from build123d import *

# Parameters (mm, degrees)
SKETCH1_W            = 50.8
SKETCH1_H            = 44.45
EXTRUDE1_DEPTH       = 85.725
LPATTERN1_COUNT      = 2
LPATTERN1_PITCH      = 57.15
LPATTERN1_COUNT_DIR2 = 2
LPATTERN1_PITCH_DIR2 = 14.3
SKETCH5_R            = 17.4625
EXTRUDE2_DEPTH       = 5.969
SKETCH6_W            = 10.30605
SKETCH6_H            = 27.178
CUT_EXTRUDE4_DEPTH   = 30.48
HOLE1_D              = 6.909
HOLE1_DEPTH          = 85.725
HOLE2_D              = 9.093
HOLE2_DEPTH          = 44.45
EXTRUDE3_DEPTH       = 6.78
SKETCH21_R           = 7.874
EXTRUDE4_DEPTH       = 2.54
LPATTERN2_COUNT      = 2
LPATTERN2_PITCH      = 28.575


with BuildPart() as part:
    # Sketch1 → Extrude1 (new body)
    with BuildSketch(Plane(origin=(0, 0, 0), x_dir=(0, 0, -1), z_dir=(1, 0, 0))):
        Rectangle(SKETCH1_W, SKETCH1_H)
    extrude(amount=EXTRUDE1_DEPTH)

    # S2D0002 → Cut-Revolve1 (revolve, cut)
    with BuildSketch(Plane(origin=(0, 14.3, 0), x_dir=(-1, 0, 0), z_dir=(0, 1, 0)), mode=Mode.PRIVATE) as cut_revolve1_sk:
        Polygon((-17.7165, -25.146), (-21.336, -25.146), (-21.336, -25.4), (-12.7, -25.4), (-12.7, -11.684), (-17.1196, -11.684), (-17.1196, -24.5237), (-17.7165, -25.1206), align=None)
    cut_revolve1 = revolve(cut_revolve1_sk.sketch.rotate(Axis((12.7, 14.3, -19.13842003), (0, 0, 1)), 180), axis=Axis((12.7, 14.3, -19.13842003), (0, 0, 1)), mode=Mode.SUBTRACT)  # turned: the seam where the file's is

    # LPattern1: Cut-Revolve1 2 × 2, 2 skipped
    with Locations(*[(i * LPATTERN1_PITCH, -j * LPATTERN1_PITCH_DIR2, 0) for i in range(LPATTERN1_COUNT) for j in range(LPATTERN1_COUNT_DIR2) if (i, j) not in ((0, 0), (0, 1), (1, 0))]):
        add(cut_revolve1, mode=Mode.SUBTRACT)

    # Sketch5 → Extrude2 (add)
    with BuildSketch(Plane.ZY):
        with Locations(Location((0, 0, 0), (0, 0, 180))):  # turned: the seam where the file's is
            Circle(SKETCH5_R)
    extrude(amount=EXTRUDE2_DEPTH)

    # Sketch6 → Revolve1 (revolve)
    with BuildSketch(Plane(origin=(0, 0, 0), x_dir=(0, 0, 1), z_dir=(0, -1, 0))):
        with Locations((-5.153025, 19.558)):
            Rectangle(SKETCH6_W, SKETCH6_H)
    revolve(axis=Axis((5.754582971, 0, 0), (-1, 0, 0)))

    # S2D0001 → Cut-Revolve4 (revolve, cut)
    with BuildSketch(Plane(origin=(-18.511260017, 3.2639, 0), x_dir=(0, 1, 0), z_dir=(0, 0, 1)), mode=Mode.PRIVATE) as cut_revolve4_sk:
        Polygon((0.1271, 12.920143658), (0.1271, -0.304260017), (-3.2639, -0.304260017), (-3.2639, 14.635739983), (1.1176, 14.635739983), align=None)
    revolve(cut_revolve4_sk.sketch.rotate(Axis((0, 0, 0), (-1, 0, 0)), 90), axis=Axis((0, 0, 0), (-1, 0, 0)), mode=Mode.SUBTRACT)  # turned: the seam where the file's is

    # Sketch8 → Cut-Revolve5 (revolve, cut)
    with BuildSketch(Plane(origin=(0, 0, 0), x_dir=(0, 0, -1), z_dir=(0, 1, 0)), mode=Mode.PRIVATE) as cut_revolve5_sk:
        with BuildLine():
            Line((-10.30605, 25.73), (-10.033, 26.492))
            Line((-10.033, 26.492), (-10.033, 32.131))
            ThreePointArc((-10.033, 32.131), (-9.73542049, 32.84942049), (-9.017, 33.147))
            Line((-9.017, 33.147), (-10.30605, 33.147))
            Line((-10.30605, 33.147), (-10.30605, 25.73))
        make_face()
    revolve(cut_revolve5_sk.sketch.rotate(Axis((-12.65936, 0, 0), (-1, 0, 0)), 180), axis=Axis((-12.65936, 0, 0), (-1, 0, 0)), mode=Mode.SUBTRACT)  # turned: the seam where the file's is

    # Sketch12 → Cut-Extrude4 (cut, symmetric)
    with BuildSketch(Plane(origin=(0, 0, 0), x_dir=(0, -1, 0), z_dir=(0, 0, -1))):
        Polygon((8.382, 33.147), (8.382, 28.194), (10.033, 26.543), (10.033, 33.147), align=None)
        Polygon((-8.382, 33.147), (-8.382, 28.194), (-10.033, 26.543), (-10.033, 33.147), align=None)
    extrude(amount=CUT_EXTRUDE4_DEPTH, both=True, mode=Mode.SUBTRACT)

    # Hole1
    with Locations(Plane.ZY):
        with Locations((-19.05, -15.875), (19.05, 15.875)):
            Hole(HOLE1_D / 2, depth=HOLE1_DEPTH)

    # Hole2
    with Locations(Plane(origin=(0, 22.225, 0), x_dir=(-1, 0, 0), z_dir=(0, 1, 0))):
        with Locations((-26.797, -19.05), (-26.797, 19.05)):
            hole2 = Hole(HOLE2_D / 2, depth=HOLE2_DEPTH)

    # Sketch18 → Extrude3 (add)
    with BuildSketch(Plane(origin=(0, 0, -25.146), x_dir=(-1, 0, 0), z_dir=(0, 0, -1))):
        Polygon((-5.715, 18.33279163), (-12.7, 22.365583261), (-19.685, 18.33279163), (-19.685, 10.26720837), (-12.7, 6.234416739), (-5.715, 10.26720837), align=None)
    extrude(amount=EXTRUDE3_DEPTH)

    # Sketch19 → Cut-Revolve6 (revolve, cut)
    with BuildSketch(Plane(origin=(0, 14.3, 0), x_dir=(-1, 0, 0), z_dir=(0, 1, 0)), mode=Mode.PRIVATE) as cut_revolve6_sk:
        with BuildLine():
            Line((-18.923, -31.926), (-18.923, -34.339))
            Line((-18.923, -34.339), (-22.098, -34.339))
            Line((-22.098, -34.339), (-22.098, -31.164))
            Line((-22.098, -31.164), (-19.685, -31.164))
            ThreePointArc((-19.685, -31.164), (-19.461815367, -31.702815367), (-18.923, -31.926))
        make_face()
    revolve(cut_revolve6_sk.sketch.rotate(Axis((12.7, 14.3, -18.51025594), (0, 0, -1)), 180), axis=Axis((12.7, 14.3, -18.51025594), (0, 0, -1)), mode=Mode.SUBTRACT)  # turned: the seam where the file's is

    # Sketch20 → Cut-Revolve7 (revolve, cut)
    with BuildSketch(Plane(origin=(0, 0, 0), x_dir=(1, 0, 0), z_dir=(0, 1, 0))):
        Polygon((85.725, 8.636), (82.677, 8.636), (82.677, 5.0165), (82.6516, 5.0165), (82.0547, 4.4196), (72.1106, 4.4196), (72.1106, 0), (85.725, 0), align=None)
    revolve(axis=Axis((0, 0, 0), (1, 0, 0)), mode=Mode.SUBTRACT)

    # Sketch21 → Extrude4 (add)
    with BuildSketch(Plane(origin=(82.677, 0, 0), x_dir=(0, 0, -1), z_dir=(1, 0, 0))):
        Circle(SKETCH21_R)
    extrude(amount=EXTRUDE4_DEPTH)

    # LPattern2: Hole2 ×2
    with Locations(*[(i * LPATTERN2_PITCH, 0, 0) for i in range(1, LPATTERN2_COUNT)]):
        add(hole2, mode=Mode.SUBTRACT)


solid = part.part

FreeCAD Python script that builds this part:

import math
import FreeCAD as App
import Part
import Sketcher
Q = App.Units.Quantity


def add_polygon(sketch, points):
    """Adds a closed chain of lines whose ends are joined by coincident constraints."""
    first, n = sketch.GeometryCount, len(points)
    for a, b in zip(points, points[1:] + points[:1]):
        sketch.addGeometry(Part.LineSegment(App.Vector(*a, 0), App.Vector(*b, 0)), False)
    for i in range(n):
        sketch.addConstraint(Sketcher.Constraint("Coincident", first + i, 2, first + (i + 1) % n, 1))

doc = App.newDocument("Part")
params = doc.addObject("Spreadsheet::Sheet", "Params")
for row, (alias, value) in enumerate([
    ("sketch1_height", "2 in"),
    ("sketch1_width", "1.75 in"),
    ("pad1_length", "3.375 in"),
    ("sketch2_width", "0.34 in"),
    ("sketch2_height", "0.01 in"),
    ("sketch2_height2", "0.54 in"),
    ("sketch2_width2", "0.174 in"),
    ("sketch2_height3", "0.001 in"),
    ("groove_angle", "360 deg"),
    ("linearpattern_pitch", "58.911905 mm"),
    ("sketch3_diameter", "1.375 in"),
    ("pad2_length", "0.235 in"),
    ("sketch4_width", "1.07 in"),
    ("revolution_angle", "360 deg"),
    ("groove2_angle", "360 deg"),
    ("sketch6_radius", "0.04 in"),
    ("groove3_angle", "360 deg"),
    ("sketch7_width", "0.26 in"),
    ("sketch7_width2", "0.195 in"),
    ("pocket1_length", "2.4 in"),
    ("hole_diameter", "6.909 mm"),
    ("hole_depth", "3.375 in"),
    ("hole2_diameter", "9.093 mm"),
    ("hole2_depth", "1.75 in"),
    ("pad3_length", "6.78 mm"),
    ("sketch11_radius", "0.03 in"),
    ("sketch11_width", "0.095 in"),
    ("groove4_angle", "360 deg"),
    ("sketch12_width", "0.12 in"),
    ("sketch12_height", "0.34 in"),
    ("sketch12_width2", "0.001 in"),
    ("sketch12_width3", "0.536 in"),
    ("sketch12_height2", "0.174 in"),
    ("groove5_angle", "360 deg"),
    ("sketch13_diameter", "0.62 in"),
    ("pad4_length", "0.1 in"),
    ("linearpattern2_pitch", "1.125 in"),
], start=1):
    params.set(f"A{row}", alias)
    params.set(f"B{row}", "=" + value)
    params.setAlias(f"B{row}", alias)

body = doc.addObject("PartDesign::Body", "Body")

# Sketch on YZ plane
sketch1 = body.newObject("Sketcher::SketchObject", "Sketch")
sketch1.AttachmentSupport = (doc.getObject("YZ_Plane"), [""])
sketch1.MapMode = "FlatFace"
add_polygon(sketch1, [(22.225, 25.4), (-22.225, 25.4), (-22.225, -25.4), (22.225, -25.4)])  # lines 0-3
sketch1.addConstraint([
    Sketcher.Constraint("Horizontal", 0),
    Sketcher.Constraint("Vertical", 1),
    Sketcher.Constraint("Horizontal", 2),
    Sketcher.Constraint("Vertical", 3),
    Sketcher.Constraint("Symmetric", 0, 2, 2, 2, -1, 1),
    Sketcher.Constraint("DistanceY", 1, 2, 1, 1, Q("2 in")),
    Sketcher.Constraint("DistanceX", 0, 2, 0, 1, Q("1.75 in")),
])
sketch1.setExpression("Constraints[9]", "Params.sketch1_height")
sketch1.setExpression("Constraints[10]", "Params.sketch1_width")
pad1 = body.newObject("PartDesign::Pad", "Pad")
pad1.Profile = sketch1
pad1.setExpression("Length", "Params.pad1_length")

# Sketch on XZ plane
sketch2 = body.newObject("Sketcher::SketchObject", "Sketch001")
sketch2.AttachmentSupport = (doc.getObject("XZ_Plane"), [""])
sketch2.MapMode = "FlatFace"
sketch2.AttachmentOffset = App.Placement(App.Vector(0, 0, -14.3), App.Rotation())
add_polygon(sketch2, [(17.7165, -25.146), (21.336, -25.146), (21.336, -25.4), (12.7, -25.4), (12.7, -11.684), (17.1196, -11.684), (17.1196, -24.5237), (17.7165, -25.1206)])  # lines 0-7
sketch2.addGeometry(Part.LineSegment(App.Vector(12.7, -25.4, 0), App.Vector(12.7, -11.684, 0)), True)  # axis
sketch2.addConstraint([
    Sketcher.Constraint("Horizontal", 0),
    Sketcher.Constraint("Vertical", 1),
    Sketcher.Constraint("Horizontal", 2),
    Sketcher.Constraint("Vertical", 3),
    Sketcher.Constraint("Horizontal", 4),
    Sketcher.Constraint("Vertical", 5),
    Sketcher.Constraint("Vertical", 7),
    Sketcher.Constraint("Vertical", 8),
    Sketcher.Constraint("Coincident", 8, 1, 2, 2),
    Sketcher.Constraint("Horizontal", 4, 2, 8, 2),
    Sketcher.Constraint("DistanceY", 1, 2, -1, 1, Q("1 in")),
    Sketcher.Constraint("Angle", 6, Q("-45 deg")),
    Sketcher.Constraint("DistanceX", 2, 2, 2, 1, Q("0.34 in")),
    Sketcher.Constraint("DistanceY", 1, 2, 1, 1, Q("0.01 in")),
    Sketcher.Constraint("DistanceY", 3, 1, 3, 2, Q("0.54 in")),
    Sketcher.Constraint("DistanceX", -1, 1, 2, 2, Q("0.5 in")),
    Sketcher.Constraint("DistanceX", 4, 1, 4, 2, Q("0.174 in")),
    Sketcher.Constraint("DistanceY", 7, 2, 7, 1, Q("0.001 in")),
    Sketcher.Constraint("DistanceX", 0, 1, 0, 2, Q("0.1425 in")),
])
sketch2.setExpression("Constraints[20]", "Params.sketch2_width")
sketch2.setExpression("Constraints[21]", "Params.sketch2_height")
sketch2.setExpression("Constraints[22]", "Params.sketch2_height2")
sketch2.setExpression("Constraints[24]", "Params.sketch2_width2")
sketch2.setExpression("Constraints[25]", "Params.sketch2_height3")
groove = body.newObject("PartDesign::Groove", "Groove")
groove.Profile = sketch2
groove.ReferenceAxis = (sketch2, ["Axis0"])
groove.setExpression("Angle", "Params.groove_angle")
doc.recompute()

datumline = body.newObject("PartDesign::Line", "DatumLine")
datumline.Placement = App.Placement(App.Vector(0, 0, 0), App.Rotation(App.Vector(0, 0, 1), App.Vector(0.970092555, -0.24273532, 0)))
linearpattern = body.newObject("PartDesign::LinearPattern", "LinearPattern")
linearpattern.Originals = [groove]
linearpattern.Direction = (datumline, [""])
linearpattern.Mode = "offset"
linearpattern.setExpression("Offset", "Params.linearpattern_pitch")
linearpattern.Occurrences = 2
body.Tip = linearpattern

# Sketch on YZ plane
sketch3 = body.newObject("Sketcher::SketchObject", "Sketch002")
sketch3.AttachmentSupport = (doc.getObject("YZ_Plane"), [""])
sketch3.MapMode = "FlatFace"
sketch3.addGeometry(Part.Circle(App.Vector(0, 0, 0), App.Vector(0, 0, 1), 17.4625), False)
sketch3.addConstraint([
    Sketcher.Constraint("Coincident", 0, 3, -1, 1),
    Sketcher.Constraint("Diameter", 0, Q("1.375 in")),
])
sketch3.setExpression("Constraints[1]", "Params.sketch3_diameter")
pad2 = body.newObject("PartDesign::Pad", "Pad001")
pad2.Profile = sketch3
pad2.setExpression("Length", "Params.pad2_length")
pad2.Reversed = True

# Sketch on XZ plane
sketch4 = body.newObject("Sketcher::SketchObject", "Sketch003")
sketch4.AttachmentSupport = (doc.getObject("XZ_Plane"), [""])
sketch4.MapMode = "FlatFace"
add_polygon(sketch4, [(-33.147, -10.30605), (-5.969, -10.30605), (-5.969, 0), (-33.147, 0)])  # lines 0-3
sketch4.addConstraint([
    Sketcher.Constraint("Horizontal", 0),
    Sketcher.Constraint("Vertical", 1),
    Sketcher.Constraint("Horizontal", 2),
    Sketcher.Constraint("Vertical", 3),
    Sketcher.Constraint("PointOnObject", 1, 2, -1),
    Sketcher.Constraint("DistanceX", 0, 1, 0, 2, Q("1.07 in")),
    Sketcher.Constraint("DistanceX", 0, 2, -1, 1, Q("0.235 in")),
    Sketcher.Constraint("DistanceY", 1, 1, 1, 2, Q("10.30605 mm")),
])
sketch4.setExpression("Constraints[9]", "Params.sketch4_width")
revolution = body.newObject("PartDesign::Revolution", "Revolution")
revolution.Profile = sketch4
revolution.ReferenceAxis = (sketch4, ["H_Axis"])
revolution.setExpression("Angle", "Params.revolution_angle")

# Sketch on XY plane
sketch5 = body.newObject("Sketcher::SketchObject", "Sketch004")
sketch5.AttachmentSupport = (doc.getObject("XY_Plane"), [""])
sketch5.MapMode = "FlatFace"
add_polygon(sketch5, [(-18.207, 3.391), (-31.431404, 3.391), (-33.147, 4.3815), (-33.147, 0), (-18.207, 0)])  # lines 0-4
sketch5.addConstraint([
    Sketcher.Constraint("Horizontal", 0),
    Sketcher.Constraint("Vertical", 2),
    Sketcher.Constraint("Horizontal", 3),
    Sketcher.Constraint("Vertical", 4),
    Sketcher.Constraint("PointOnObject", 2, 2, -1),
    Sketcher.Constraint("Angle", 1, Q("150 deg")),
    Sketcher.Constraint("DistanceY", 2, 2, 2, 1, Q("0.1725 in")),
    Sketcher.Constraint("DistanceX", 1, 2, -1, 1, Q("1.305 in")),
    Sketcher.Constraint("DistanceX", 3, 1, 3, 2, Q("14.94 mm")),
    Sketcher.Constraint("DistanceY", 4, 1, 4, 2, Q("3.391 mm")),
])
groove2 = body.newObject("PartDesign::Groove", "Groove001")
groove2.Profile = sketch5
groove2.ReferenceAxis = (sketch5, ["H_Axis"])
groove2.setExpression("Angle", "Params.groove2_angle")

# Sketch on XZ plane
sketch6 = body.newObject("Sketcher::SketchObject", "Sketch005")
sketch6.AttachmentSupport = (doc.getObject("XZ_Plane"), [""])
sketch6.MapMode = "FlatFace"
sketch6.addGeometry([
    Part.LineSegment(App.Vector(-25.73, 10.30605, 0), App.Vector(-26.492, 10.033, 0)),  # 0
    Part.LineSegment(App.Vector(-26.492, 10.033, 0), App.Vector(-32.131, 10.033, 0)),  # 1
    Part.ArcOfCircle(Part.Circle(App.Vector(-32.131, 9.017, 0), App.Vector(0, 0, 1), 1.016), math.radians(90), math.radians(180)),  # 2
    Part.LineSegment(App.Vector(-33.147, 9.017, 0), App.Vector(-33.147, 10.30605, 0)),  # 3
    Part.LineSegment(App.Vector(-33.147, 10.30605, 0), App.Vector(-25.73, 10.30605, 0)),  # 4
], False)
sketch6.addConstraint([
    Sketcher.Constraint("Coincident", 0, 2, 1, 1),
    Sketcher.Constraint("Tangent", 1, 2, 2, 1),
    Sketcher.Constraint("Tangent", 2, 2, 3, 1),
    Sketcher.Constraint("Coincident", 3, 2, 4, 1),
    Sketcher.Constraint("Coincident", 4, 2, 0, 1),
    Sketcher.Constraint("Horizontal", 1),
    Sketcher.Constraint("Vertical", 3),
    Sketcher.Constraint("Horizontal", 4),
    Sketcher.Constraint("Radius", 2, Q("0.04 in")),
    Sketcher.Constraint("DistanceX", 0, 2, 4, 2, Q("0.03 in")),
    Sketcher.Constraint("DistanceX", 2, 3, -1, 1, Q("1.265 in")),
    Sketcher.Constraint("DistanceY", -1, 1, 2, 3, Q("0.355 in")),
    Sketcher.Constraint("DistanceX", 1, 2, 1, 1, Q("5.639 mm")),
    Sketcher.Constraint("DistanceY", 3, 1, 3, 2, Q("1.28905 mm")),
])
sketch6.setExpression("Constraints[8]", "Params.sketch6_radius")
groove3 = body.newObject("PartDesign::Groove", "Groove002")
groove3.Profile = sketch6
groove3.ReferenceAxis = (sketch6, ["H_Axis"])
groove3.setExpression("Angle", "Params.groove3_angle")

# Sketch on XY plane
sketch7 = body.newObject("Sketcher::SketchObject", "Sketch006")
sketch7.AttachmentSupport = (doc.getObject("XY_Plane"), [""])
sketch7.MapMode = "FlatFace"
add_polygon(sketch7, [(-33.147, -8.382), (-28.194, -8.382), (-26.543, -10.033), (-33.147, -10.033)])  # lines 0-3
add_polygon(sketch7, [(-28.194, 8.382), (-33.147, 8.382), (-33.147, 10.033), (-26.543, 10.033)])  # lines 4-7
sketch7.addConstraint([
    Sketcher.Constraint("Horizontal", 0),
    Sketcher.Constraint("Horizontal", 2),
    Sketcher.Constraint("Vertical", 3),
    Sketcher.Constraint("Horizontal", 4),
    Sketcher.Constraint("Vertical", 5),
    Sketcher.Constraint("Horizontal", 6),
    Sketcher.Constraint("Symmetric", 3, 2, 4, 2, -1),
    Sketcher.Constraint("Symmetric", 1, 2, 6, 2, -1),
    Sketcher.Constraint("Perpendicular", 1, 7),
    Sketcher.Constraint("Vertical", 0, 2, 7, 2),
    Sketcher.Constraint("DistanceX", 2, 2, 2, 1, Q("0.26 in")),
    Sketcher.Constraint("DistanceX", 0, 1, 0, 2, Q("0.195 in")),
    Sketcher.Constraint("DistanceX", 0, 2, -1, 1, Q("1.11 in")),
    Sketcher.Constraint("DistanceY", 0, 2, -1, 1, Q("0.33 in")),
])
sketch7.setExpression("Constraints[18]", "Params.sketch7_width")
sketch7.setExpression("Constraints[19]", "Params.sketch7_width2")
pocket1 = body.newObject("PartDesign::Pocket", "Pocket")
pocket1.Profile = sketch7
pocket1.setExpression("Length", "Params.pocket1_length")
pocket1.Midplane = True

# Sketch on YZ plane
sketch8 = body.newObject("Sketcher::SketchObject", "Sketch007")
sketch8.AttachmentSupport = (doc.getObject("YZ_Plane"), [""])
sketch8.MapMode = "FlatFace"
sketch8.addGeometry([
    Part.Circle(App.Vector(-15.875, -19.05, 0), App.Vector(0, 0, 1), 3.4545),
    Part.Circle(App.Vector(15.875, 19.05, 0), App.Vector(0, 0, 1), 3.4545),
], False)
sketch8.addConstraint([
    Sketcher.Constraint("Equal", 0, 1),
    Sketcher.Constraint("Symmetric", 0, 3, 1, 3, -1, 1),
    Sketcher.Constraint("DistanceY", 0, 3, 1, 3, Q("1.5 in")),
    Sketcher.Constraint("Diameter", 0, Q("6.909 mm")),
    Sketcher.Constraint("DistanceX", 0, 3, 1, 3, Q("1.25 in")),
])
doc.recompute()
hole = body.newObject("PartDesign::Hole", "Hole")
hole.Profile = sketch8
hole.ThreadType = "None"
hole.setExpression("Diameter", "Params.hole_diameter")
hole.DepthType = "Dimension"
hole.setExpression("Depth", "Params.hole_depth")
hole.DrillPoint = "Flat"
hole.Reversed = True

# Sketch on XZ plane
sketch9 = body.newObject("Sketcher::SketchObject", "Sketch008")
sketch9.AttachmentSupport = (doc.getObject("XZ_Plane"), [""])
sketch9.MapMode = "FlatFace"
sketch9.AttachmentOffset = App.Placement(App.Vector(0, 0, -0.875 * 25.4), App.Rotation())
sketch9.addGeometry([
    Part.Circle(App.Vector(26.797, -19.05, 0), App.Vector(0, 0, 1), 4.5465),
    Part.Circle(App.Vector(26.797, 19.05, 0), App.Vector(0, 0, 1), 4.5465),
], False)
sketch9.addConstraint([
    Sketcher.Constraint("Equal", 0, 1),
    Sketcher.Constraint("Symmetric", 0, 3, 1, 3, -1),
    Sketcher.Constraint("DistanceY", 0, 3, 1, 3, Q("1.5 in")),
    Sketcher.Constraint("Diameter", 0, Q("9.093 mm")),
    Sketcher.Constraint("DistanceX", -1, 1, 0, 3, Q("1.055 in")),
])
doc.recompute()
hole2 = body.newObject("PartDesign::Hole", "Hole001")
hole2.Profile = sketch9
hole2.ThreadType = "None"
hole2.setExpression("Diameter", "Params.hole2_diameter")
hole2.DepthType = "Dimension"
hole2.setExpression("Depth", "Params.hole2_depth")
hole2.DrillPoint = "Flat"
hole2.Reversed = True

# Sketch on XY plane
sketch10 = body.newObject("Sketcher::SketchObject", "Sketch009")
sketch10.AttachmentSupport = (doc.getObject("XY_Plane"), [""])
sketch10.MapMode = "FlatFace"
sketch10.AttachmentOffset = App.Placement(App.Vector(0, 0, -0.99 * 25.4), App.Rotation())
add_polygon(sketch10, [(5.715, 18.332792), (12.7, 22.365583), (19.685, 18.332792), (19.685, 10.267208), (12.7, 6.234417), (5.715, 10.267208)])  # lines 0-5
sketch10.addConstraint([
    Sketcher.Constraint("Vertical", 2),
    Sketcher.Constraint("Vertical", 5),
    Sketcher.Constraint("Parallel", 0, 3),
    Sketcher.Constraint("Parallel", 1, 4),
    Sketcher.Constraint("Horizontal", 2, 2, 4, 2),
    Sketcher.Constraint("Horizontal", 1, 2, 5, 2),
    Sketcher.Constraint("Vertical", 0, 2, 3, 2),
    Sketcher.Constraint("Angle", 0, Q("30 deg")),
    Sketcher.Constraint("DistanceX", -1, 1, 0, 2, Q("0.5 in")),
    Sketcher.Constraint("DistanceX", 4, 2, 2, 2, Q("0.55 in")),
    Sketcher.Constraint("DistanceY", 2, 2, 2, 1, Q("8.065583 mm")),
    Sketcher.Constraint("DistanceY", -1, 1, 1, 2, Q("18.332792 mm")),
])
pad3 = body.newObject("PartDesign::Pad", "Pad002")
pad3.Profile = sketch10
pad3.setExpression("Length", "Params.pad3_length")
pad3.Reversed = True

# Sketch on XZ plane
sketch11 = body.newObject("Sketcher::SketchObject", "Sketch010")
sketch11.AttachmentSupport = (doc.getObject("XZ_Plane"), [""])
sketch11.MapMode = "FlatFace"
sketch11.AttachmentOffset = App.Placement(App.Vector(0, 0, -14.3), App.Rotation())
sketch11.addGeometry([
    Part.LineSegment(App.Vector(18.923, -34.339, 0), App.Vector(18.923, -31.926, 0)),  # 0
    Part.ArcOfCircle(Part.Circle(App.Vector(18.923, -31.164, 0), App.Vector(0, 0, 1), 0.762), math.radians(-90), math.radians(0)),  # 1
    Part.LineSegment(App.Vector(19.685, -31.164, 0), App.Vector(22.098, -31.164, 0)),  # 2
    Part.LineSegment(App.Vector(22.098, -31.164, 0), App.Vector(22.098, -34.339, 0)),  # 3
    Part.LineSegment(App.Vector(22.098, -34.339, 0), App.Vector(18.923, -34.339, 0)),  # 4
], False)
sketch11.addGeometry(Part.LineSegment(App.Vector(12.7, -31.164, 0), App.Vector(12.7, -34.339, 0)), True)  # axis
sketch11.addConstraint([
    Sketcher.Constraint("Coincident", 0, 2, 1, 1),
    Sketcher.Constraint("Coincident", 1, 2, 2, 1),
    Sketcher.Constraint("Coincident", 2, 2, 3, 1),
    Sketcher.Constraint("Coincident", 3, 2, 4, 1),
    Sketcher.Constraint("Coincident", 4, 2, 0, 1),
    Sketcher.Constraint("Vertical", 0),
    Sketcher.Constraint("Horizontal", 2),
    Sketcher.Constraint("Vertical", 3),
    Sketcher.Constraint("Horizontal", 4),
    Sketcher.Constraint("Vertical", 5),
    Sketcher.Constraint("Horizontal", 2, 2, 5, 1),
    Sketcher.Constraint("Horizontal", 4, 2, 5, 2),
    Sketcher.Constraint("Vertical", 1, 3, 0, 2),
    Sketcher.Constraint("Equal", 2, 0),
    Sketcher.Constraint("Equal", 4, 3),
    Sketcher.Constraint("Radius", 1, Q("0.03 in")),
    Sketcher.Constraint("DistanceX", -1, 1, 5, 1, Q("0.5 in")),
    Sketcher.Constraint("DistanceX", 2, 1, 2, 2, Q("0.095 in")),
    Sketcher.Constraint("DistanceX", -1, 1, 2, 2, Q("0.87 in")),
    Sketcher.Constraint("DistanceY", 1, 3, -1, 1, Q("31.164 mm")),
])
sketch11.setExpression("Constraints[15]", "Params.sketch11_radius")
sketch11.setExpression("Constraints[17]", "Params.sketch11_width")
groove4 = body.newObject("PartDesign::Groove", "Groove003")
groove4.Profile = sketch11
groove4.ReferenceAxis = (sketch11, ["Axis0"])
groove4.setExpression("Angle", "Params.groove4_angle")

# Sketch on XZ plane
sketch12 = body.newObject("Sketcher::SketchObject", "Sketch011")
sketch12.AttachmentSupport = (doc.getObject("XZ_Plane"), [""])
sketch12.MapMode = "FlatFace"
add_polygon(sketch12, [(85.725, -8.636), (82.677, -8.636), (82.677, -5.0165), (82.6516, -5.0165), (82.0547, -4.4196), (72.1106, -4.4196), (72.1106, 0), (85.725, 0)])  # lines 0-7
sketch12.addConstraint([
    Sketcher.Constraint("Horizontal", 0),
    Sketcher.Constraint("Vertical", 1),
    Sketcher.Constraint("Horizontal", 2),
    Sketcher.Constraint("Horizontal", 4),
    Sketcher.Constraint("Vertical", 5),
    Sketcher.Constraint("Horizontal", 6),
    Sketcher.Constraint("Vertical", 7),
    Sketcher.Constraint("PointOnObject", 5, 2, -1),
    Sketcher.Constraint("Angle", 3, Q("135 deg")),
    Sketcher.Constraint("DistanceX", 0, 2, 0, 1, Q("0.12 in")),
    Sketcher.Constraint("DistanceY", 7, 2, 7, 1, Q("0.34 in")),
    Sketcher.Constraint("DistanceX", 2, 2, 2, 1, Q("0.001 in")),
    Sketcher.Constraint("DistanceX", 6, 1, 6, 2, Q("0.536 in")),
    Sketcher.Constraint("DistanceY", 5, 1, 5, 2, Q("0.174 in")),
    Sketcher.Constraint("DistanceX", 4, 2, 4, 1, Q("0.3915 in")),
    Sketcher.Constraint("DistanceX", -1, 1, 0, 2, Q("3.255 in")),
])
sketch12.setExpression("Constraints[17]", "Params.sketch12_width")
sketch12.setExpression("Constraints[18]", "Params.sketch12_height")
sketch12.setExpression("Constraints[19]", "Params.sketch12_width2")
sketch12.setExpression("Constraints[20]", "Params.sketch12_width3")
sketch12.setExpression("Constraints[21]", "Params.sketch12_height2")
groove5 = body.newObject("PartDesign::Groove", "Groove004")
groove5.Profile = sketch12
groove5.ReferenceAxis = (sketch12, ["H_Axis"])
groove5.setExpression("Angle", "Params.groove5_angle")

# Sketch on YZ plane
sketch13 = body.newObject("Sketcher::SketchObject", "Sketch012")
sketch13.AttachmentSupport = (doc.getObject("YZ_Plane"), [""])
sketch13.MapMode = "FlatFace"
sketch13.AttachmentOffset = App.Placement(App.Vector(0, 0, 3.255 * 25.4), App.Rotation())
sketch13.addGeometry(Part.Circle(App.Vector(0, 0, 0), App.Vector(0, 0, 1), 7.874), False)
sketch13.addConstraint([
    Sketcher.Constraint("Coincident", 0, 3, -1, 1),
    Sketcher.Constraint("Diameter", 0, Q("0.62 in")),
])
sketch13.setExpression("Constraints[1]", "Params.sketch13_diameter")
pad4 = body.newObject("PartDesign::Pad", "Pad003")
pad4.Profile = sketch13
pad4.setExpression("Length", "Params.pad4_length")
doc.recompute()

linearpattern2 = body.newObject("PartDesign::LinearPattern", "LinearPattern001")
linearpattern2.Originals = [hole2]
linearpattern2.Direction = (doc.getObject("X_Axis"), [""])
linearpattern2.Mode = "offset"
linearpattern2.setExpression("Offset", "Params.linearpattern2_pitch")
linearpattern2.Occurrences = 2
body.Tip = linearpattern2

doc.recompute()
